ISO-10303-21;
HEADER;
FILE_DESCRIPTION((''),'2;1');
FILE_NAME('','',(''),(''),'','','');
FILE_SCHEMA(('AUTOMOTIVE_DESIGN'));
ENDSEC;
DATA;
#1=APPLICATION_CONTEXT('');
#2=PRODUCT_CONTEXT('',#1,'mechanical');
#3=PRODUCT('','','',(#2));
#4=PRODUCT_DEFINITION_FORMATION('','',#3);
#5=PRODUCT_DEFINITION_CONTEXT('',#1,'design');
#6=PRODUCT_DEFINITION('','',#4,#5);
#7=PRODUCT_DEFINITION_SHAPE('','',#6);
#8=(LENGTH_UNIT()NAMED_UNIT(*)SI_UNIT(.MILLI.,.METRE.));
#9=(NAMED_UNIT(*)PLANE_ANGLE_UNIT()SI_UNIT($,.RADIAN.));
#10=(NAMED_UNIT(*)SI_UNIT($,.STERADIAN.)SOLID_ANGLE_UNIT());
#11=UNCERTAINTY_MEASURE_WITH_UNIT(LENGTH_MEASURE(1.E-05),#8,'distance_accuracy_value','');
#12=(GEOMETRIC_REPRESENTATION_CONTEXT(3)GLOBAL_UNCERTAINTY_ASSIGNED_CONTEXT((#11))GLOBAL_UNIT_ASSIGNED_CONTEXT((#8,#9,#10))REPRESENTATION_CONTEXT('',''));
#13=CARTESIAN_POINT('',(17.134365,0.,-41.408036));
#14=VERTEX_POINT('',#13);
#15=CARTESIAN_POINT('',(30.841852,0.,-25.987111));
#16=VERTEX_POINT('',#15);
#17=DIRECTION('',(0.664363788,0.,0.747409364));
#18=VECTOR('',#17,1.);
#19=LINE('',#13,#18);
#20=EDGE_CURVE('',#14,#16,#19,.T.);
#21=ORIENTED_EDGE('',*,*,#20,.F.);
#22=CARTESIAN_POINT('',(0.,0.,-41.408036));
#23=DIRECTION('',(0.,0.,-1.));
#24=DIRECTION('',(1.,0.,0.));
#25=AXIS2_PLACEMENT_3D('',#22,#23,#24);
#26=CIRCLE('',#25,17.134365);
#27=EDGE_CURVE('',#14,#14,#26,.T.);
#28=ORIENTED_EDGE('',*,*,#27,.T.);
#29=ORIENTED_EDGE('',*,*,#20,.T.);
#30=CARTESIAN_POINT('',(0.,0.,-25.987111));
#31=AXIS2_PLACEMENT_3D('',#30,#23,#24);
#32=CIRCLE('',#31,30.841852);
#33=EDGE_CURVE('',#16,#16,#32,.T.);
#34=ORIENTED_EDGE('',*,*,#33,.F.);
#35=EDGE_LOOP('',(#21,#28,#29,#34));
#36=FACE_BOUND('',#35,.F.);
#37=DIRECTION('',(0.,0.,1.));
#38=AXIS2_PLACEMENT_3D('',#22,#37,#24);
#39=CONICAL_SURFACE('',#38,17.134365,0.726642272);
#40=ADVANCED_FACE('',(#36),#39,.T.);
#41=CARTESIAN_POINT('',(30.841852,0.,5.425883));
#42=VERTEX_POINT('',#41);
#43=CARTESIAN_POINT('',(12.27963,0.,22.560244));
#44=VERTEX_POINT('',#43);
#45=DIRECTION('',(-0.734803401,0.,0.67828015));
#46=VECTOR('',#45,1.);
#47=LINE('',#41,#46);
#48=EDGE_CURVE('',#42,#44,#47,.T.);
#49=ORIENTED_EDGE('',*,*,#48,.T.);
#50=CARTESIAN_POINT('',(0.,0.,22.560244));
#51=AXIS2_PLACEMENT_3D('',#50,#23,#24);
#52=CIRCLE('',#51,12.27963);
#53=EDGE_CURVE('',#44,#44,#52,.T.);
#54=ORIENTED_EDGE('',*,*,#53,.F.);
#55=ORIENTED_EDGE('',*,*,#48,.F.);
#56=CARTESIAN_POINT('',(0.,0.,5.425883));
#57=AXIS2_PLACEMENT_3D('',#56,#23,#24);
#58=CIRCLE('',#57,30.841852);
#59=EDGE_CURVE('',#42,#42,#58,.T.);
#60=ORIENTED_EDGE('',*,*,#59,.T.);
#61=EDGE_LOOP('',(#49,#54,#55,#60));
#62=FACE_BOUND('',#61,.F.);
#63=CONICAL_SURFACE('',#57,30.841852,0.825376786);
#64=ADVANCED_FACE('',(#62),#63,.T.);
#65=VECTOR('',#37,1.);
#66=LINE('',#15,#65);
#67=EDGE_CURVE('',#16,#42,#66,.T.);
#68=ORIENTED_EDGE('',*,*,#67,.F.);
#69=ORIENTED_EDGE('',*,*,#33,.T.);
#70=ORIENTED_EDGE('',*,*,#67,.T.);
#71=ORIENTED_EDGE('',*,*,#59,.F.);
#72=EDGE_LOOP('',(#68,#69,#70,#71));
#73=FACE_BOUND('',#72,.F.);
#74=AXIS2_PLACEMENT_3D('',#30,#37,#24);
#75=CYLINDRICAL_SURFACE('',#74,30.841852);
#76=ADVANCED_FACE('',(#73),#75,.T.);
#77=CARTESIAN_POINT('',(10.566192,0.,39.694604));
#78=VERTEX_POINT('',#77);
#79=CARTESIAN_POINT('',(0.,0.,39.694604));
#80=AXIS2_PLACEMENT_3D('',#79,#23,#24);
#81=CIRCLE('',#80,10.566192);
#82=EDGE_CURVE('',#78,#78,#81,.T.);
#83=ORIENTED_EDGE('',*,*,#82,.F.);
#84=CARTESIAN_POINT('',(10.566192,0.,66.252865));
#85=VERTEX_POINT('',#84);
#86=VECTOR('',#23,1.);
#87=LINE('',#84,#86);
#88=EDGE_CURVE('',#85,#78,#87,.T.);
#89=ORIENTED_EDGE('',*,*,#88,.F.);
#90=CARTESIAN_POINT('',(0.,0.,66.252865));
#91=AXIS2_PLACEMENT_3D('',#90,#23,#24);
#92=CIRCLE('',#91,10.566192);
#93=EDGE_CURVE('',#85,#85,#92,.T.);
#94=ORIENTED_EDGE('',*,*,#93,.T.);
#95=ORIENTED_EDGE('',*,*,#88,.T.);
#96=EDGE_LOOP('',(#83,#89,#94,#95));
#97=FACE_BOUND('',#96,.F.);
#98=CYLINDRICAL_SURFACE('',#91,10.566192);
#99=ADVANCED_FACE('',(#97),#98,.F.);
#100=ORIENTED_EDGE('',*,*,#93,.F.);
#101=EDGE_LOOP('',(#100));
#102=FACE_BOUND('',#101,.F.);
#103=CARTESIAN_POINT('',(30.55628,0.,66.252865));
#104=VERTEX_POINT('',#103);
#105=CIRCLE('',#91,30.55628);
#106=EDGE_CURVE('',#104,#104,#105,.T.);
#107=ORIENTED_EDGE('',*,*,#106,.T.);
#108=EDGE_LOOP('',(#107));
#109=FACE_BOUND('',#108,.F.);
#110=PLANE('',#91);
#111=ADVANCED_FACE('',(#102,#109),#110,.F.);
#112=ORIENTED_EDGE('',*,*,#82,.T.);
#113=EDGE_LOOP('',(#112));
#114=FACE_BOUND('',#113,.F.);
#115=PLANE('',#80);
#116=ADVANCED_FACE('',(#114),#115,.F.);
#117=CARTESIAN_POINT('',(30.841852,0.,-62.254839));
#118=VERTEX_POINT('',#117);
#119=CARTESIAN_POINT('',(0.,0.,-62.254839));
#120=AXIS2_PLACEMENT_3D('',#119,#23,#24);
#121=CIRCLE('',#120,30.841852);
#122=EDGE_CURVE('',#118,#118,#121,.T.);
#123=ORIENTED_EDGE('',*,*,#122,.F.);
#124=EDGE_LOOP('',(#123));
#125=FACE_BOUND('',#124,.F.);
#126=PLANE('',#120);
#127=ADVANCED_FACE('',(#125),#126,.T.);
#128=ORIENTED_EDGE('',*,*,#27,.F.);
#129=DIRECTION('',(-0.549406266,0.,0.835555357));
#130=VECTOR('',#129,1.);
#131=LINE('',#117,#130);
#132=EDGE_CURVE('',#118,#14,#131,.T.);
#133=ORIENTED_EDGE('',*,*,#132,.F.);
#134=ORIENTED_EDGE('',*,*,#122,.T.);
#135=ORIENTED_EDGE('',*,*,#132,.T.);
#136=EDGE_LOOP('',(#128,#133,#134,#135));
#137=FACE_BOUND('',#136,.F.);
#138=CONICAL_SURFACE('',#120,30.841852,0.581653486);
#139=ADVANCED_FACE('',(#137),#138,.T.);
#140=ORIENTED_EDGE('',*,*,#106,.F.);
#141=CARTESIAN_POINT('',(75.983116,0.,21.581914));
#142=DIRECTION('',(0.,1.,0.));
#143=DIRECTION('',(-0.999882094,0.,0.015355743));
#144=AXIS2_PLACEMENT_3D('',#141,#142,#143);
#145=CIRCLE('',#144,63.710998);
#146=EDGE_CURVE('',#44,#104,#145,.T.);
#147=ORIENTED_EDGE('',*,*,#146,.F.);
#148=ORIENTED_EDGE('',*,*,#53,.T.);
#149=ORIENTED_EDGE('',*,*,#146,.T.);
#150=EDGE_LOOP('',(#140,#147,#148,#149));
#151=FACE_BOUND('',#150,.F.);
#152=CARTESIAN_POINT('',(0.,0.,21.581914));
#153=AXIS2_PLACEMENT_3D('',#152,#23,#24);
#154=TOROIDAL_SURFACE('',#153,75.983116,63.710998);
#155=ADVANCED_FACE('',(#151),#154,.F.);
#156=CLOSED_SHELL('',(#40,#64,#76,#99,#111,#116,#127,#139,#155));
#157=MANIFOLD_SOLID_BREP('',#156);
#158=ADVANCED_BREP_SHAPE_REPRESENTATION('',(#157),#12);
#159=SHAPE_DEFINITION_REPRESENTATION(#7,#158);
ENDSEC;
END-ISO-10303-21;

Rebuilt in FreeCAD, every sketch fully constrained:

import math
import FreeCAD as App
import Part
import Sketcher
Q = App.Units.Quantity

doc = App.newDocument("Part")
params = doc.addObject("Spreadsheet::Sheet", "Params")
for row, (alias, value) in enumerate([
    ("revolution_angle", "360 deg"),
], start=1):
    params.set(f"A{row}", alias)
    params.set(f"B{row}", "=" + value)
    params.setAlias(f"B{row}", alias)

body = doc.addObject("PartDesign::Body", "Body")

# Sketch on XZ plane
sketch1 = body.newObject("Sketcher::SketchObject", "Sketch")
sketch1.AttachmentSupport = (doc.getObject("XZ_Plane"), [""])
sketch1.MapMode = "FlatFace"
sketch1.addGeometry([
    Part.LineSegment(App.Vector(11, 40, 0), App.Vector(0, 40, 0)),  # 0
    Part.LineSegment(App.Vector(0, 40, 0), App.Vector(0, -62, 0)),  # 1
    Part.LineSegment(App.Vector(0, -62, 0), App.Vector(31, -62, 0)),  # 2
    Part.LineSegment(App.Vector(31, -62, 0), App.Vector(17, -41, 0)),  # 3
    Part.LineSegment(App.Vector(17, -41, 0), App.Vector(31, -26, 0)),  # 4
    Part.LineSegment(App.Vector(31, -26, 0), App.Vector(31, 5, 0)),  # 5
    Part.LineSegment(App.Vector(31, 5, 0), App.Vector(12, 23, 0)),  # 6
    Part.ArcOfCircle(Part.Circle(App.Vector(76, 22, 0), App.Vector(0, 0, 1), 64), math.radians(135), math.radians(179)),  # 7
    Part.LineSegment(App.Vector(31, 66, 0), App.Vector(11, 66, 0)),  # 8
    Part.LineSegment(App.Vector(11, 66, 0), App.Vector(11, 40, 0)),  # 9
], False)
sketch1.addConstraint([
    Sketcher.Constraint("Coincident", 0, 2, 1, 1),
    Sketcher.Constraint("Coincident", 1, 2, 2, 1),
    Sketcher.Constraint("Coincident", 2, 2, 3, 1),
    Sketcher.Constraint("Coincident", 3, 2, 4, 1),
    Sketcher.Constraint("Coincident", 4, 2, 5, 1),
    Sketcher.Constraint("Coincident", 5, 2, 6, 1),
    Sketcher.Constraint("Coincident", 6, 2, 7, 2),
    Sketcher.Constraint("Coincident", 7, 1, 8, 1),
    Sketcher.Constraint("Coincident", 8, 2, 9, 1),
    Sketcher.Constraint("Coincident", 9, 2, 0, 1),
    Sketcher.Constraint("Horizontal", 0),
    Sketcher.Constraint("Vertical", 1),
    Sketcher.Constraint("Horizontal", 2),
    Sketcher.Constraint("Vertical", 5),
    Sketcher.Constraint("Horizontal", 8),
    Sketcher.Constraint("Vertical", 9),
    Sketcher.Constraint("PointOnObject", 0, 2, -2),
    Sketcher.Constraint("Vertical", 2, 2, 4, 2),
    Sketcher.Constraint("Radius", 7, Q("63.710998 mm")),
    Sketcher.Constraint("Distance", 4, Q("20.632502 mm")),
    Sketcher.Constraint("DistanceX", 0, 2, 0, 1, Q("10.566192 mm")),
    Sketcher.Constraint("DistanceX", 2, 1, 2, 2, Q("30.841852 mm")),
    Sketcher.Constraint("DistanceX", 8, 2, 8, 1, Q("19.990088 mm")),
    Sketcher.Constraint("DistanceY", 9, 2, 9, 1, Q("26.558261 mm")),
    Sketcher.Constraint("Distance", 6, Q("25.261481 mm")),
    Sketcher.Constraint("DistanceY", 1, 2, 1, 1, Q("101.949443 mm")),
    Sketcher.Constraint("DistanceY", 5, 1, 5, 2, Q("31.412994 mm")),
    Sketcher.Constraint("DistanceY", 1, 2, -1, 1, Q("62.254839 mm")),
    Sketcher.Constraint("DistanceY", 4, 2, -1, 1, Q("25.987111 mm")),
    Sketcher.Constraint("DistanceX", -1, 1, 6, 2, Q("12.27963 mm")),
    Sketcher.Constraint("DistanceY", 3, 2, 0, 2, Q("81.10264 mm")),
])
revolution = body.newObject("PartDesign::Revolution", "Revolution")
revolution.Profile = sketch1
revolution.ReferenceAxis = (sketch1, ["V_Axis"])
revolution.setExpression("Angle", "Params.revolution_angle")

doc.recompute()
